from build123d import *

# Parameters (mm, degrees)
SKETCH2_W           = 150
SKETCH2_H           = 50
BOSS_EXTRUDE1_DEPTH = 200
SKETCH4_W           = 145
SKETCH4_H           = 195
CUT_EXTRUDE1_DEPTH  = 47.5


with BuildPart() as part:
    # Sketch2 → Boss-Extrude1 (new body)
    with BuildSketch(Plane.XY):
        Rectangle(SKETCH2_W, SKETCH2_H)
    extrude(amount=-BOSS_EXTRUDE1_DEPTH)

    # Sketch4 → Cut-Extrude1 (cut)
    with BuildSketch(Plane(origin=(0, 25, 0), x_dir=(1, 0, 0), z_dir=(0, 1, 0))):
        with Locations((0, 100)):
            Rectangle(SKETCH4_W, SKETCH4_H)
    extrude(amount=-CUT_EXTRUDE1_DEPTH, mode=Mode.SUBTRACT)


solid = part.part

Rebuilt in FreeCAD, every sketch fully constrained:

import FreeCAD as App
import Part
import Sketcher


def add_polygon(sketch, points):
    """Adds a closed chain of lines whose ends are joined by coincident constraints."""
    first, n = sketch.GeometryCount, len(points)
    for a, b in zip(points, points[1:] + points[:1]):
        sketch.addGeometry(Part.LineSegment(App.Vector(*a, 0), App.Vector(*b, 0)), False)
    for i in range(n):
        sketch.addConstraint(Sketcher.Constraint("Coincident", first + i, 2, first + (i + 1) % n, 1))

doc = App.newDocument("Part")
body = doc.addObject("PartDesign::Body", "Body")

sketch1 = doc.addObject("Sketcher::SketchObject", "Sketch")
body.addObject(sketch1)
sketch1.AttachmentSupport = (doc.XY_Plane, [""])
sketch1.MapMode = "FlatFace"
add_polygon(sketch1, [(-75, 25), (-75, -25), (75, -25), (75, 25)])
sketch1.addConstraint([
    Sketcher.Constraint("Vertical", 0),
    Sketcher.Constraint("Horizontal", 1),
    Sketcher.Constraint("Vertical", 2),
    Sketcher.Constraint("Horizontal", 3),
    Sketcher.Constraint("Symmetric", 0, 2, 2, 2, -1, 1),
    Sketcher.Constraint("DistanceX", 1, 1, 1, 2, 150.0),
    Sketcher.Constraint("DistanceY", 0, 2, 0, 1, 50.0),
])
pad1 = doc.addObject("PartDesign::Pad", "Pad")
body.addObject(pad1)
pad1.Profile = sketch1
pad1.Length = 200
pad1.Reversed = True

sketch2 = doc.addObject("Sketcher::SketchObject", "Sketch001")
body.addObject(sketch2)
sketch2.AttachmentSupport = (doc.XZ_Plane, [""])
sketch2.MapMode = "FlatFace"
sketch2.AttachmentOffset = App.Placement(App.Vector(0, 0, -25), App.Rotation())
add_polygon(sketch2, [(-72, -198), (-72, -2), (72, -2), (72, -198)])
sketch2.addConstraint([
    Sketcher.Constraint("Vertical", 0),
    Sketcher.Constraint("Horizontal", 1),
    Sketcher.Constraint("Vertical", 2),
    Sketcher.Constraint("Horizontal", 3),
    Sketcher.Constraint("DistanceX", 1, 1, 1, 2, 145.0),
    Sketcher.Constraint("DistanceY", 0, 1, 0, 2, 195.0),
    Sketcher.Constraint("DistanceX", 0, 2, -1, 1, 72.5),
    Sketcher.Constraint("DistanceY", 0, 2, -1, 1, 2.5),
])
pocket1 = doc.addObject("PartDesign::Pocket", "Pocket")
body.addObject(pocket1)
pocket1.Profile = sketch2
pocket1.Length = 47.5
pocket1.Reversed = True

doc.recompute()
